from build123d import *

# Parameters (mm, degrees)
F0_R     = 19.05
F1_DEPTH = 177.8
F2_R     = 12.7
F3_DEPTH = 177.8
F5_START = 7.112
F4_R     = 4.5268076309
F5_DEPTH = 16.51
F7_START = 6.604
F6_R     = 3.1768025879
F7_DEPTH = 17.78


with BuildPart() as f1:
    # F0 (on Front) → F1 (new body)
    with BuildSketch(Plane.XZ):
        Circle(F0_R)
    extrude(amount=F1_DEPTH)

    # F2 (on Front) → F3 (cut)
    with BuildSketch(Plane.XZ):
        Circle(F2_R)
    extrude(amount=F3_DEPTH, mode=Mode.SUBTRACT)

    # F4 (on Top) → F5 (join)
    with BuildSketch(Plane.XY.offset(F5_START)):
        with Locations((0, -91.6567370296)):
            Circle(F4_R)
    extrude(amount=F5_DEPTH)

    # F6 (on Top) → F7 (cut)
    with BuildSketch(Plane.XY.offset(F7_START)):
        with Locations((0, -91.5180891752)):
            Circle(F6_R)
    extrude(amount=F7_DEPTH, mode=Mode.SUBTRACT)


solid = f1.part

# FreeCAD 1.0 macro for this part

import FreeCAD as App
import Part
import Sketcher
from FreeCAD import Vector
Q = App.Units.Quantity

doc = App.newDocument("Part")
body = doc.addObject("PartDesign::Body", "Body")

sketch1 = body.newObject("Sketcher::SketchObject", "Sketch")
sketch1.AttachmentSupport = (doc.getObject("XZ_Plane"), [""])
sketch1.MapMode = "FlatFace"
sketch1.addGeometry(Part.Circle(Vector(0, 0, 0), Vector(0, 0, 1), 19), False)
sketch1.addConstraint([
    Sketcher.Constraint("Coincident", 0, 3, -1, 1),
    Sketcher.Constraint("Diameter", 0, Q("1.5 in")),
])
pad1 = body.newObject("PartDesign::Pad", "Pad")
pad1.Profile = sketch1
pad1.Length = Q("7 in")

sketch2 = body.newObject("Sketcher::SketchObject", "Sketch001")
sketch2.AttachmentSupport = (doc.getObject("XZ_Plane"), [""])
sketch2.MapMode = "FlatFace"
sketch2.addGeometry(Part.Circle(Vector(0, 0, 0), Vector(0, 0, 1), 13), False)
sketch2.addConstraint([
    Sketcher.Constraint("Coincident", 0, 3, -1, 1),
    Sketcher.Constraint("Diameter", 0, Q("1 in")),
])
pocket1 = body.newObject("PartDesign::Pocket", "Pocket")
pocket1.Profile = sketch2
pocket1.Length = Q("7 in")
pocket1.Reversed = True

sketch3 = body.newObject("Sketcher::SketchObject", "Sketch002")
sketch3.AttachmentSupport = (doc.getObject("XY_Plane"), [""])
sketch3.MapMode = "FlatFace"
sketch3.AttachmentOffset = App.Placement(Vector(0, 0, 0.28 * 25.4), App.Rotation())
sketch3.addGeometry(Part.Circle(Vector(0, -91.7, 0), Vector(0, 0, 1), 4.5), False)
sketch3.addConstraint([
    Sketcher.Constraint("PointOnObject", 0, 3, -2),
    Sketcher.Constraint("Diameter", 0, Q("9.053615 mm")),
    Sketcher.Constraint("DistanceY", 0, 3, -1, 1, Q("91.656737 mm")),
])
pad2 = body.newObject("PartDesign::Pad", "Pad001")
pad2.Profile = sketch3
pad2.Length = Q("0.65 in")

sketch4 = body.newObject("Sketcher::SketchObject", "Sketch003")
sketch4.AttachmentSupport = (doc.getObject("XY_Plane"), [""])
sketch4.MapMode = "FlatFace"
sketch4.AttachmentOffset = App.Placement(Vector(0, 0, 0.26 * 25.4), App.Rotation())
sketch4.addGeometry(Part.Circle(Vector(0, -91.5, 0), Vector(0, 0, 1), 3.2), False)
sketch4.addConstraint([
    Sketcher.Constraint("PointOnObject", 0, 3, -2),
    Sketcher.Constraint("Diameter", 0, Q("6.353605 mm")),
    Sketcher.Constraint("DistanceY", 0, 3, -1, 1, Q("91.518089 mm")),
])
pocket2 = body.newObject("PartDesign::Pocket", "Pocket001")
pocket2.Profile = sketch4
pocket2.Length = Q("0.7 in")
pocket2.Reversed = True

doc.recompute()
